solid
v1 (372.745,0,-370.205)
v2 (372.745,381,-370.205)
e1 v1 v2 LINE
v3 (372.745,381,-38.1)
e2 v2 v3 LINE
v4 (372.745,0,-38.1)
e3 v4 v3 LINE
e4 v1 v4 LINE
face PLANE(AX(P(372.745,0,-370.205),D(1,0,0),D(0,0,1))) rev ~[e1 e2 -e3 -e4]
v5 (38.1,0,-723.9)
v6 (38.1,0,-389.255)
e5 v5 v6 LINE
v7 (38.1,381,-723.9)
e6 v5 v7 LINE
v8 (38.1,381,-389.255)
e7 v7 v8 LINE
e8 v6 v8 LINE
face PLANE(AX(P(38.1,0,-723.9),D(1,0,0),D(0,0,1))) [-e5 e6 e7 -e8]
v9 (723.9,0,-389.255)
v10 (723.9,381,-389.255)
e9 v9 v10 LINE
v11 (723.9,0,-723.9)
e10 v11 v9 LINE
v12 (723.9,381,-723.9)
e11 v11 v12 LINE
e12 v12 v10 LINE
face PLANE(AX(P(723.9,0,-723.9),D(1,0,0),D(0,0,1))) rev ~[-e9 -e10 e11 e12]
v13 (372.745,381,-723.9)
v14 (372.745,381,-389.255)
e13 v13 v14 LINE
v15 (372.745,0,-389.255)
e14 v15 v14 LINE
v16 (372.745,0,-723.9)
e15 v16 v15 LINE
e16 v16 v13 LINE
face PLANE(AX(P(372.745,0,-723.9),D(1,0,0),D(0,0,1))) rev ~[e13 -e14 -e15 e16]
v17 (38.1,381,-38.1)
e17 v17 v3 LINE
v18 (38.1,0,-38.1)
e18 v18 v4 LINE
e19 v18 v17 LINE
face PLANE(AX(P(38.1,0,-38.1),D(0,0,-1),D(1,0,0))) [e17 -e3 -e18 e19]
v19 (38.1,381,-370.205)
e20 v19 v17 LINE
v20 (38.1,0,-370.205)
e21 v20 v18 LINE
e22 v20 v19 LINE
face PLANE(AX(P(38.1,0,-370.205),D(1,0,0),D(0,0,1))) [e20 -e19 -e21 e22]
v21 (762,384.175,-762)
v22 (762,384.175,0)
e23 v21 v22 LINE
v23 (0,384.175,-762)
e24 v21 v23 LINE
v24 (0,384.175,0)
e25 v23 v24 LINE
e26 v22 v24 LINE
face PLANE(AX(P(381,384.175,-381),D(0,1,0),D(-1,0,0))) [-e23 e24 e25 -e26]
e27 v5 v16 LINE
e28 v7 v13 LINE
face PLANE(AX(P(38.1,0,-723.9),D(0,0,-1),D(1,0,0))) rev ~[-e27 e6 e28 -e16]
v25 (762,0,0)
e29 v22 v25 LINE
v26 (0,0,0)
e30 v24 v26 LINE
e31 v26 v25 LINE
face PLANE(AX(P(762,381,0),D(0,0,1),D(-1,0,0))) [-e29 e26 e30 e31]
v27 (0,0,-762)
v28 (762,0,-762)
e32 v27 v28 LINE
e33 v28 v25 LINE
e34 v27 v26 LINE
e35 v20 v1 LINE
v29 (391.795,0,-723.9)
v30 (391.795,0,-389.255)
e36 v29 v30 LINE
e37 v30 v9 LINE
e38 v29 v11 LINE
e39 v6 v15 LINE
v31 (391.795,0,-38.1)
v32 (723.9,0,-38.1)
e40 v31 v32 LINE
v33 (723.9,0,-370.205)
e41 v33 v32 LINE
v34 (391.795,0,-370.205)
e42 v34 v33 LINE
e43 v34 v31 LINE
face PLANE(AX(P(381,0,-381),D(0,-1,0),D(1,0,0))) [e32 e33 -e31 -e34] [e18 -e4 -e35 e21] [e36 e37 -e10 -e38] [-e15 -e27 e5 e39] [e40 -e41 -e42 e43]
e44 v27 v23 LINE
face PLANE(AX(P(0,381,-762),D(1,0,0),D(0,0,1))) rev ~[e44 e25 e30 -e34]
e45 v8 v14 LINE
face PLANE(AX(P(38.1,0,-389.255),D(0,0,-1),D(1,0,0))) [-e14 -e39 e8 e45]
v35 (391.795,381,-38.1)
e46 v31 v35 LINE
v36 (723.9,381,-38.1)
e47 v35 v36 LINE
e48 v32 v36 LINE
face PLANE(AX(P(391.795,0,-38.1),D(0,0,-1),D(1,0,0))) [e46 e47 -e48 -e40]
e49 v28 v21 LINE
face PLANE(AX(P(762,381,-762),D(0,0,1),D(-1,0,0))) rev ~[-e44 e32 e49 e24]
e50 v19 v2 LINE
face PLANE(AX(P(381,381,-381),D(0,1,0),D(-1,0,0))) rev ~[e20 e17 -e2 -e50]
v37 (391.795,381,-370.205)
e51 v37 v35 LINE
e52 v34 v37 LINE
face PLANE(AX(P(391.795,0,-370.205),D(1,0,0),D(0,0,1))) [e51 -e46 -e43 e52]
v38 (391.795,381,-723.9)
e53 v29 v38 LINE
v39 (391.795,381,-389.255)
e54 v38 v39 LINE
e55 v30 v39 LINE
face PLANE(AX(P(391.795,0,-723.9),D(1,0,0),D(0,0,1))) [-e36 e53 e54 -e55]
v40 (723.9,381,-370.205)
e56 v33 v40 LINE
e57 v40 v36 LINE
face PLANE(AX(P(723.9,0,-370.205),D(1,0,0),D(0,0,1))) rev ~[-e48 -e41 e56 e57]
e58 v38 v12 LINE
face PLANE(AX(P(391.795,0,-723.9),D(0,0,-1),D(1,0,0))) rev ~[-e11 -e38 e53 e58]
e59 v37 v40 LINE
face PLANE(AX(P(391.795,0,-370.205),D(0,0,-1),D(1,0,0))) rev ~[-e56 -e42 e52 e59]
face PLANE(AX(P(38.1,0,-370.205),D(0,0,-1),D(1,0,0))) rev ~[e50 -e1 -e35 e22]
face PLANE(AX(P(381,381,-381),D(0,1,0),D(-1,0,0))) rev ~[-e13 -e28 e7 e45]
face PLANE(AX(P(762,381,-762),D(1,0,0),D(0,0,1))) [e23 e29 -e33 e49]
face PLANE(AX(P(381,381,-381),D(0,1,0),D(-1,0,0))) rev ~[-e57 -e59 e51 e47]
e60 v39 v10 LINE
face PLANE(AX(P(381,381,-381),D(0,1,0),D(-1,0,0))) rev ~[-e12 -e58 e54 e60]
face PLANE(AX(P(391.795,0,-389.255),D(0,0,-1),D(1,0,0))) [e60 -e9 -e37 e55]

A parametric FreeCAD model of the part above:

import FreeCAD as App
import Part
import Sketcher
from FreeCAD import Vector
Q = App.Units.Quantity

doc = App.newDocument("Part")
body = doc.addObject("PartDesign::Body", "Body")

# Sketch on XZ plane
sketch1 = body.newObject("Sketcher::SketchObject", "Sketch")
sketch1.AttachmentSupport = (doc.getObject("XZ_Plane"), [""])
sketch1.MapMode = "FlatFace"
sketch1.addGeometry(Part.LineSegment(Vector(0, 0, 0), Vector(0, -762, 0)), False)
sketch1.addGeometry(Part.LineSegment(Vector(0, -762, 0), Vector(762, -762, 0)), False)
sketch1.addGeometry(Part.LineSegment(Vector(762, -762, 0), Vector(762, 0, 0)), False)
sketch1.addGeometry(Part.LineSegment(Vector(762, 0, 0), Vector(0, 0, 0)), False)
sketch1.addGeometry(Part.LineSegment(Vector(373, -724, 0), Vector(38, -724, 0)), False)
sketch1.addGeometry(Part.LineSegment(Vector(38, -724, 0), Vector(38, -389, 0)), False)
sketch1.addGeometry(Part.LineSegment(Vector(38, -389, 0), Vector(373, -389, 0)), False)
sketch1.addGeometry(Part.LineSegment(Vector(373, -389, 0), Vector(373, -724, 0)), False)
sketch1.addGeometry(Part.LineSegment(Vector(724, -724, 0), Vector(392, -724, 0)), False)
sketch1.addGeometry(Part.LineSegment(Vector(392, -724, 0), Vector(392, -389, 0)), False)
sketch1.addGeometry(Part.LineSegment(Vector(392, -389, 0), Vector(724, -389, 0)), False)
sketch1.addGeometry(Part.LineSegment(Vector(724, -389, 0), Vector(724, -724, 0)), False)
sketch1.addGeometry(Part.LineSegment(Vector(373, -370, 0), Vector(38, -370, 0)), False)
sketch1.addGeometry(Part.LineSegment(Vector(38, -370, 0), Vector(38, -38, 0)), False)
sketch1.addGeometry(Part.LineSegment(Vector(38, -38, 0), Vector(373, -38, 0)), False)
sketch1.addGeometry(Part.LineSegment(Vector(373, -38, 0), Vector(373, -370, 0)), False)
sketch1.addGeometry(Part.LineSegment(Vector(724, -370, 0), Vector(392, -370, 0)), False)
sketch1.addGeometry(Part.LineSegment(Vector(392, -370, 0), Vector(392, -38, 0)), False)
sketch1.addGeometry(Part.LineSegment(Vector(392, -38, 0), Vector(724, -38, 0)), False)
sketch1.addGeometry(Part.LineSegment(Vector(724, -38, 0), Vector(724, -370, 0)), False)
sketch1.addConstraint(Sketcher.Constraint("Coincident", 0, 2, 1, 1))
sketch1.addConstraint(Sketcher.Constraint("Coincident", 1, 2, 2, 1))
sketch1.addConstraint(Sketcher.Constraint("Coincident", 2, 2, 3, 1))
sketch1.addConstraint(Sketcher.Constraint("Coincident", 3, 2, 0, 1))
sketch1.addConstraint(Sketcher.Constraint("Coincident", 4, 2, 5, 1))
sketch1.addConstraint(Sketcher.Constraint("Coincident", 5, 2, 6, 1))
sketch1.addConstraint(Sketcher.Constraint("Coincident", 6, 2, 7, 1))
sketch1.addConstraint(Sketcher.Constraint("Coincident", 7, 2, 4, 1))
sketch1.addConstraint(Sketcher.Constraint("Coincident", 8, 2, 9, 1))
sketch1.addConstraint(Sketcher.Constraint("Coincident", 9, 2, 10, 1))
sketch1.addConstraint(Sketcher.Constraint("Coincident", 10, 2, 11, 1))
sketch1.addConstraint(Sketcher.Constraint("Coincident", 11, 2, 8, 1))
sketch1.addConstraint(Sketcher.Constraint("Coincident", 12, 2, 13, 1))
sketch1.addConstraint(Sketcher.Constraint("Coincident", 13, 2, 14, 1))
sketch1.addConstraint(Sketcher.Constraint("Coincident", 14, 2, 15, 1))
sketch1.addConstraint(Sketcher.Constraint("Coincident", 15, 2, 12, 1))
sketch1.addConstraint(Sketcher.Constraint("Coincident", 16, 2, 17, 1))
sketch1.addConstraint(Sketcher.Constraint("Coincident", 17, 2, 18, 1))
sketch1.addConstraint(Sketcher.Constraint("Coincident", 18, 2, 19, 1))
sketch1.addConstraint(Sketcher.Constraint("Coincident", 19, 2, 16, 1))
sketch1.addConstraint(Sketcher.Constraint("Vertical", 0))
sketch1.addConstraint(Sketcher.Constraint("Horizontal", 1))
sketch1.addConstraint(Sketcher.Constraint("Vertical", 2))
sketch1.addConstraint(Sketcher.Constraint("Horizontal", 3))
sketch1.addConstraint(Sketcher.Constraint("Horizontal", 4))
sketch1.addConstraint(Sketcher.Constraint("Vertical", 5))
sketch1.addConstraint(Sketcher.Constraint("Horizontal", 6))
sketch1.addConstraint(Sketcher.Constraint("Vertical", 7))
sketch1.addConstraint(Sketcher.Constraint("Horizontal", 8))
sketch1.addConstraint(Sketcher.Constraint("Vertical", 9))
sketch1.addConstraint(Sketcher.Constraint("Horizontal", 10))
sketch1.addConstraint(Sketcher.Constraint("Vertical", 11))
sketch1.addConstraint(Sketcher.Constraint("Horizontal", 12))
sketch1.addConstraint(Sketcher.Constraint("Vertical", 13))
sketch1.addConstraint(Sketcher.Constraint("Horizontal", 14))
sketch1.addConstraint(Sketcher.Constraint("Vertical", 15))
sketch1.addConstraint(Sketcher.Constraint("Horizontal", 16))
sketch1.addConstraint(Sketcher.Constraint("Vertical", 17))
sketch1.addConstraint(Sketcher.Constraint("Horizontal", 18))
sketch1.addConstraint(Sketcher.Constraint("Vertical", 19))
sketch1.addConstraint(Sketcher.Constraint("Coincident", 3, 2, -1, 1))
sketch1.addConstraint(Sketcher.Constraint("Horizontal", 7, 2, 8, 2))
sketch1.addConstraint(Sketcher.Constraint("Horizontal", 6, 2, 9, 2))
sketch1.addConstraint(Sketcher.Constraint("Horizontal", 15, 2, 16, 2))
sketch1.addConstraint(Sketcher.Constraint("Horizontal", 14, 2, 17, 2))
sketch1.addConstraint(Sketcher.Constraint("Vertical", 5, 2, 12, 2))
sketch1.addConstraint(Sketcher.Constraint("Vertical", 7, 2, 14, 2))
sketch1.addConstraint(Sketcher.Constraint("Vertical", 9, 2, 16, 2))
sketch1.addConstraint(Sketcher.Constraint("Vertical", 11, 2, 18, 2))
sketch1.addConstraint(Sketcher.Constraint("Equal", 3, 0))
sketch1.addConstraint(Sketcher.Constraint("Equal", 14, 5))
sketch1.addConstraint(Sketcher.Constraint("Equal", 18, 13))
sketch1.addConstraint(Sketcher.Constraint("DistanceX", 1, 1, 1, 2, Q("30 in")))
sketch1.addConstraint(Sketcher.Constraint("DistanceX", -1, 1, 4, 2, Q("1.5 in")))
sketch1.addConstraint(Sketcher.Constraint("DistanceY", 4, 2, -1, 1, Q("28.5 in")))
sketch1.addConstraint(Sketcher.Constraint("DistanceX", -1, 1, 10, 2, Q("28.5 in")))
sketch1.addConstraint(Sketcher.Constraint("DistanceY", 13, 2, -1, 1, Q("1.5 in")))
sketch1.addConstraint(Sketcher.Constraint("DistanceX", 4, 2, 4, 1, Q("13.175 in")))
sketch1.addConstraint(Sketcher.Constraint("DistanceX", 8, 2, 8, 1, Q("13.075 in")))
pad1 = body.newObject("PartDesign::Pad", "Pad")
pad1.Profile = sketch1
pad1.Length = Q("15 in")
pad1.Reversed = True

# Sketch on XZ plane
sketch2 = body.newObject("Sketcher::SketchObject", "Sketch001")
sketch2.AttachmentSupport = (doc.getObject("XZ_Plane"), [""])
sketch2.MapMode = "FlatFace"
sketch2.AttachmentOffset = App.Placement(Vector(0, 0, -15 * 25.4), App.Rotation())
sketch2.addGeometry(Part.LineSegment(Vector(762, 0, 0), Vector(762, -762, 0)), False)
sketch2.addGeometry(Part.LineSegment(Vector(762, -762, 0), Vector(0, -762, 0)), False)
sketch2.addGeometry(Part.LineSegment(Vector(0, -762, 0), Vector(0, 0, 0)), False)
sketch2.addGeometry(Part.LineSegment(Vector(0, 0, 0), Vector(762, 0, 0)), False)
sketch2.addConstraint(Sketcher.Constraint("Coincident", 0, 2, 1, 1))
sketch2.addConstraint(Sketcher.Constraint("Coincident", 1, 2, 2, 1))
sketch2.addConstraint(Sketcher.Constraint("Coincident", 2, 2, 3, 1))
sketch2.addConstraint(Sketcher.Constraint("Coincident", 3, 2, 0, 1))
sketch2.addConstraint(Sketcher.Constraint("Vertical", 0))
sketch2.addConstraint(Sketcher.Constraint("Horizontal", 1))
sketch2.addConstraint(Sketcher.Constraint("Vertical", 2))
sketch2.addConstraint(Sketcher.Constraint("Horizontal", 3))
sketch2.addConstraint(Sketcher.Constraint("Coincident", 2, 2, -1, 1))
sketch2.addConstraint(Sketcher.Constraint("Equal", 3, 0))
sketch2.addConstraint(Sketcher.Constraint("DistanceX", 1, 2, 1, 1, Q("30 in")))
pad2 = body.newObject("PartDesign::Pad", "Pad001")
pad2.Profile = sketch2
pad2.Length = Q("0.125 in")
pad2.Reversed = True

doc.recompute()
